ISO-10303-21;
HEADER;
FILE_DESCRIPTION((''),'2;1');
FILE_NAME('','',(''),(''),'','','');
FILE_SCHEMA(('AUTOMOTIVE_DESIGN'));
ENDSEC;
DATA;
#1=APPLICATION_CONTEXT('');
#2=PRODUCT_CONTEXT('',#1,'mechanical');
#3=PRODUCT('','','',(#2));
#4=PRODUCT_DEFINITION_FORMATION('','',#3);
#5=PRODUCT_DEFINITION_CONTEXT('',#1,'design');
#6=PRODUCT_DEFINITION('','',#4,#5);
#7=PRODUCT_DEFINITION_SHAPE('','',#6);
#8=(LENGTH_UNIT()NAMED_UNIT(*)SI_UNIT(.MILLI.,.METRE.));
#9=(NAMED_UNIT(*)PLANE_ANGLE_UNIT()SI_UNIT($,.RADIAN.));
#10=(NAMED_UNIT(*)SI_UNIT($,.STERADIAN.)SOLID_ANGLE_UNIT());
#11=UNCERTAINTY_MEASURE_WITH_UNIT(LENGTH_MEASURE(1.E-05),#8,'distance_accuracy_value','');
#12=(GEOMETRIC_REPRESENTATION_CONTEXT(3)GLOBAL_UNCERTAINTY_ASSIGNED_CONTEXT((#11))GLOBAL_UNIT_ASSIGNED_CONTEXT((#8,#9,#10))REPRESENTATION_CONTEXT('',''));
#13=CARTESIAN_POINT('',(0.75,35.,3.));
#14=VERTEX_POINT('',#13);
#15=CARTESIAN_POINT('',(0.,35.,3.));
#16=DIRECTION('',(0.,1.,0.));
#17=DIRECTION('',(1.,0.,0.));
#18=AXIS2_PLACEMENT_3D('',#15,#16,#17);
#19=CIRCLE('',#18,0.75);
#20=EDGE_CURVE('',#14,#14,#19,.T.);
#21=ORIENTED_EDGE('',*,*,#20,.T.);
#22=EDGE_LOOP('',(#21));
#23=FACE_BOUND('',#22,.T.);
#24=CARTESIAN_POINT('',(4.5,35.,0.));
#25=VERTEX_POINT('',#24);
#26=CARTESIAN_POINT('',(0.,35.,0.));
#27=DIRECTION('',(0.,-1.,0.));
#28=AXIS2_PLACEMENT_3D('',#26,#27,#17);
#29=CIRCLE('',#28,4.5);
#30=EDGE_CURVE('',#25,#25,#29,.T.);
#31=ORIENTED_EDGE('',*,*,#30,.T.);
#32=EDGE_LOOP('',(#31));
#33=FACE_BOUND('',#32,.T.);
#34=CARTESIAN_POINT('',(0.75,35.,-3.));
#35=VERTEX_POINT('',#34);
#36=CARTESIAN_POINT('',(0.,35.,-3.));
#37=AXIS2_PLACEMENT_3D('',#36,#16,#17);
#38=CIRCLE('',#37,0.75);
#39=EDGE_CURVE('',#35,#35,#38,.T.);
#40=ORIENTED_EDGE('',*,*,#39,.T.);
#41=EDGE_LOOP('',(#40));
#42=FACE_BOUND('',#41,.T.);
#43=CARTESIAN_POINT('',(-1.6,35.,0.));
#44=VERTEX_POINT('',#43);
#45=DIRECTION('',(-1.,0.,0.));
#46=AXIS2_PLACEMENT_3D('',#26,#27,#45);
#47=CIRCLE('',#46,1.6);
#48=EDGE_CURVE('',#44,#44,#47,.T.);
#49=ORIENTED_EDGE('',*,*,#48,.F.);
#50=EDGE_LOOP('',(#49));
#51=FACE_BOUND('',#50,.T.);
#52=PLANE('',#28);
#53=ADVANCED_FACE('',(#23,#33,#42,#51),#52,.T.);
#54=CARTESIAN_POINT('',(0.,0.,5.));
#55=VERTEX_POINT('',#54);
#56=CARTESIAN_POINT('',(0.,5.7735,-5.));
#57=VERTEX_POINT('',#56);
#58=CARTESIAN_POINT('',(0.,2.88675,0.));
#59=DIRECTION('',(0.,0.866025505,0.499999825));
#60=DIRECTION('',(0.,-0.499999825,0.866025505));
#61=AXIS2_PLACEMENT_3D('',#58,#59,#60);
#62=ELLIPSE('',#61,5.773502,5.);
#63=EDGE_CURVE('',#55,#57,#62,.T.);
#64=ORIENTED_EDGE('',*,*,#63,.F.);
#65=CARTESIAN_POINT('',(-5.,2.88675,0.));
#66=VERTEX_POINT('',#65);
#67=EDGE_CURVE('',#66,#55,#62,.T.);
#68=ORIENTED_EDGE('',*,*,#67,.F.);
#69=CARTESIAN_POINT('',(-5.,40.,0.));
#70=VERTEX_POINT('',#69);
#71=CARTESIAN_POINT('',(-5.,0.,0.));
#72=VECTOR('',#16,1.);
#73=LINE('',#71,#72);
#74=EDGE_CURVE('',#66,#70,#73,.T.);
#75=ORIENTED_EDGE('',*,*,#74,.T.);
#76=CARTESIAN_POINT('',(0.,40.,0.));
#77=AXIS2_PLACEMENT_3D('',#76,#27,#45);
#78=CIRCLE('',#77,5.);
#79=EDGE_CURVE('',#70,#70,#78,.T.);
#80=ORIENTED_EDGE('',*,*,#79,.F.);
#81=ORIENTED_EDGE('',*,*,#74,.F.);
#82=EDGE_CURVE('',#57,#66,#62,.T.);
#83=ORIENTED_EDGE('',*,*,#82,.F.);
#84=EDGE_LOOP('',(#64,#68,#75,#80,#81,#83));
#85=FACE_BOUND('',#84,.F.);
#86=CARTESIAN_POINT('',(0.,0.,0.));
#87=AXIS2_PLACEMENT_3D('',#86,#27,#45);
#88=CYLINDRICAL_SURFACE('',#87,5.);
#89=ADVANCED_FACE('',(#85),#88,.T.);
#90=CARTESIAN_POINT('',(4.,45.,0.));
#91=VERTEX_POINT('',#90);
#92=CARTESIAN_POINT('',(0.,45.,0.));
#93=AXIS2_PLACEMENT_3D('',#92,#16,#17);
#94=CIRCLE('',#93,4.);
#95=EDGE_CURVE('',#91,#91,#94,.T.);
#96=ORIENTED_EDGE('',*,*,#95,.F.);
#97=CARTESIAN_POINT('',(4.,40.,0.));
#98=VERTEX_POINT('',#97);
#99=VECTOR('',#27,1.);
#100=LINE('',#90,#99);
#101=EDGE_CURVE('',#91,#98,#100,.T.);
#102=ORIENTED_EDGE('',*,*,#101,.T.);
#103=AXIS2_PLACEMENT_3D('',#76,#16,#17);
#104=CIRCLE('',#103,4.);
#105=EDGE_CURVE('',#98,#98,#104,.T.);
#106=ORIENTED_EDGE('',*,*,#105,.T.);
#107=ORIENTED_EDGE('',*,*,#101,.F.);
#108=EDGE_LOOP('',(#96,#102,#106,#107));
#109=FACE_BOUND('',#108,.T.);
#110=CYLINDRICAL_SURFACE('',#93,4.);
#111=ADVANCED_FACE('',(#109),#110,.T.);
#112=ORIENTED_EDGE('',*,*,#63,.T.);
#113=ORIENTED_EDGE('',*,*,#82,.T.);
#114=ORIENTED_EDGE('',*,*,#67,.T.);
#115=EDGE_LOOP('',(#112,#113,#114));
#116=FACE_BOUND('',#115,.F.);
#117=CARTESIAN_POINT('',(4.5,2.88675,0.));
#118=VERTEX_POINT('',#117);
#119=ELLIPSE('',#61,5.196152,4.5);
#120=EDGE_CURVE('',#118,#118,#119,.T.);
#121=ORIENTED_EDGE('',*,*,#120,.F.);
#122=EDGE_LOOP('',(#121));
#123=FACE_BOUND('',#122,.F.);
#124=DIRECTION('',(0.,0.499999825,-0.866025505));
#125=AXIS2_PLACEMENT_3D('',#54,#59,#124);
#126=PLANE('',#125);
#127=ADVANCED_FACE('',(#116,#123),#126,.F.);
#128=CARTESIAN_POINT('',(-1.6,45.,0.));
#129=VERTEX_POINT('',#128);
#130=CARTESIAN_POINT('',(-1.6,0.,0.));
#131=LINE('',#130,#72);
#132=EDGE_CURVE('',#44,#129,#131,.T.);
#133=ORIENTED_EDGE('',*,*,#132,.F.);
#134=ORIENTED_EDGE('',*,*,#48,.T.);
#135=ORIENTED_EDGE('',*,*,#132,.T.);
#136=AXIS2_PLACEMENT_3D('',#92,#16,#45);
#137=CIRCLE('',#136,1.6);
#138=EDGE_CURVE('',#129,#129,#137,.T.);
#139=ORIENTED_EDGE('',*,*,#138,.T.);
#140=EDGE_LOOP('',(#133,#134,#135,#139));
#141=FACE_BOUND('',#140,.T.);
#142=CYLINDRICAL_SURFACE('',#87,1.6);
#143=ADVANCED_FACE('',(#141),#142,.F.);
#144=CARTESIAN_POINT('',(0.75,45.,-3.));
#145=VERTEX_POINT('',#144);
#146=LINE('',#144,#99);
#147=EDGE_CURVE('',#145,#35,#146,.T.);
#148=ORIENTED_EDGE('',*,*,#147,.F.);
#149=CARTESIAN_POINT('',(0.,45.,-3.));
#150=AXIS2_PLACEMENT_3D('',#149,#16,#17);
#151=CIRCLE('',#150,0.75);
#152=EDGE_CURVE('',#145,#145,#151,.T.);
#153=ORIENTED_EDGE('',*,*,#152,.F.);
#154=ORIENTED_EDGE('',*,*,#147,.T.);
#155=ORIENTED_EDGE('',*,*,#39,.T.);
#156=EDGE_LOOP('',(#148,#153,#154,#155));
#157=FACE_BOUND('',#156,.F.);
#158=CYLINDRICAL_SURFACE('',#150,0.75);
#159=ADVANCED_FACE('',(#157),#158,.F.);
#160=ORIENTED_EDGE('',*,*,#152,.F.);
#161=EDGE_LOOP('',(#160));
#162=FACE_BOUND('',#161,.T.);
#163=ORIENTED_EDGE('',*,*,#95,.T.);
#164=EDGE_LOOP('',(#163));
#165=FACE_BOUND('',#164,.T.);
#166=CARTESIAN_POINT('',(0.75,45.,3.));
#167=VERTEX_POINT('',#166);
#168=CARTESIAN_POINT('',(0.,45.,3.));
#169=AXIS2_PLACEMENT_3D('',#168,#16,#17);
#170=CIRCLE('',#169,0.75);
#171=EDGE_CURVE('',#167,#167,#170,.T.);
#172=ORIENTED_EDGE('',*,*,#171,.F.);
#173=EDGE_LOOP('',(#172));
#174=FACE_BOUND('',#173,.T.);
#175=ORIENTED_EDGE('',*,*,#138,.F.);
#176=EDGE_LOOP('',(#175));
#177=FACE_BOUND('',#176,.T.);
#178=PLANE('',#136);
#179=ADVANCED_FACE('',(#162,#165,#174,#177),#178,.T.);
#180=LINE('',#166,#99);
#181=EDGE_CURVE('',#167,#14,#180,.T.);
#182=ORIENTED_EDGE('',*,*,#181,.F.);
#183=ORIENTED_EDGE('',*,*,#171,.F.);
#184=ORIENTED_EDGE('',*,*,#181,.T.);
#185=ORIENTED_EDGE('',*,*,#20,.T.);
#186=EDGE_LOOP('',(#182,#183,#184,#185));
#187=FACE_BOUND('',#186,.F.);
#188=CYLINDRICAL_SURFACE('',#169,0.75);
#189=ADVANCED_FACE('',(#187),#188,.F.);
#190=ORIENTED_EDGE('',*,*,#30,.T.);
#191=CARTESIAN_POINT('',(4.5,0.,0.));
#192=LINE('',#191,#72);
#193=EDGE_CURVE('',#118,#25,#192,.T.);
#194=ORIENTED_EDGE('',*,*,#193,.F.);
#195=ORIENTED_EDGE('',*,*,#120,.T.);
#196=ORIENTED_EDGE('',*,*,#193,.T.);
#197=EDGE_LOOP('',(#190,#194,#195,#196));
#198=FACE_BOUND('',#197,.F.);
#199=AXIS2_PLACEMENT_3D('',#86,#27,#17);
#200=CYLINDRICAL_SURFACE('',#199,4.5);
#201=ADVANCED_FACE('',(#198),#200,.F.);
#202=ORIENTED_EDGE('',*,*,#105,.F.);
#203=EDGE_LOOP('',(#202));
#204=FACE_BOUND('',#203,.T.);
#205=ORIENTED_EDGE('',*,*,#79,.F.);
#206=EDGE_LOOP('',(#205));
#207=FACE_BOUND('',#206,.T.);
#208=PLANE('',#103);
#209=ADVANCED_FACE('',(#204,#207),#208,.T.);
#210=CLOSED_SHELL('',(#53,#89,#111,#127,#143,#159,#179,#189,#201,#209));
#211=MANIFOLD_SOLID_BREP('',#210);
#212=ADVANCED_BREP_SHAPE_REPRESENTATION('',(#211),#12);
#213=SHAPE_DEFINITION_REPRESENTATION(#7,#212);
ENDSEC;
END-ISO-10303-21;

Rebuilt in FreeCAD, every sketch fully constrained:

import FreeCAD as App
import Part
import Sketcher
from FreeCAD import Vector
Q = App.Units.Quantity

doc = App.newDocument("Part")
body = doc.addObject("PartDesign::Body", "Body")

sketch1 = body.newObject("Sketcher::SketchObject", "Sketch")
sketch1.AttachmentSupport = (doc.getObject("XZ_Plane"), [""])
sketch1.MapMode = "FlatFace"
sketch1.addGeometry([
    Part.Circle(Vector(0, 0, 0), Vector(0, 0, 1), 5),
    Part.Circle(Vector(0, 0, 0), Vector(0, 0, 1), 1.6),
], False)
sketch1.addConstraint([
    Sketcher.Constraint("Coincident", 0, 3, -1, 1),
    Sketcher.Constraint("Coincident", 1, 3, -1, 1),
    Sketcher.Constraint("Diameter", 0, 10.0),
    Sketcher.Constraint("Diameter", 1, 3.2),
])
pad1 = body.newObject("PartDesign::Pad", "Pad")
pad1.Profile = sketch1
pad1.Length = 45
pad1.Reversed = True

sketch2 = body.newObject("Sketcher::SketchObject", "Sketch001")
sketch2.AttachmentSupport = (doc.getObject("XZ_Plane"), [""])
sketch2.MapMode = "FlatFace"
sketch2.AttachmentOffset = App.Placement(Vector(0, 0, -45), App.Rotation())
sketch2.addGeometry([
    Part.Circle(Vector(0, -3, 0), Vector(0, 0, 1), 0.75),
    Part.Circle(Vector(0, 3, 0), Vector(0, 0, 1), 0.75),
], False)
sketch2.addConstraint([
    Sketcher.Constraint("Equal", 0, 1),
    Sketcher.Constraint("Symmetric", 0, 3, 1, 3, -1, 1),
    Sketcher.Constraint("PointOnObject", 0, 3, -2),
    Sketcher.Constraint("Diameter", 0, 1.5),
    Sketcher.Constraint("DistanceY", 0, 3, -1, 1, 3.0),
])
pocket1 = body.newObject("PartDesign::Pocket", "Pocket")
pocket1.Profile = sketch2
pocket1.Type = "ThroughAll"
pocket1.Reversed = True

sketch3 = body.newObject("Sketcher::SketchObject", "Sketch002")
sketch3.AttachmentSupport = (doc.getObject("XZ_Plane"), [""])
sketch3.MapMode = "FlatFace"
sketch3.addGeometry(Part.Circle(Vector(0, 0, 0), Vector(0, 0, 1), 4.5), False)
sketch3.addConstraint([
    Sketcher.Constraint("Coincident", 0, 3, -1, 1),
    Sketcher.Constraint("Diameter", 0, 9.0),
])
pocket2 = body.newObject("PartDesign::Pocket", "Pocket001")
pocket2.Profile = sketch3
pocket2.Length = 35

sketch4 = body.newObject("Sketcher::SketchObject", "Sketch003")
sketch4.AttachmentSupport = (doc.getObject("YZ_Plane"), [""])
sketch4.MapMode = "FlatFace"
sketch4.addGeometry([
    Part.LineSegment(Vector(0, 5, 0), Vector(0, -5, 0)),
    Part.LineSegment(Vector(0, -5, 0), Vector(5.7735, -5, 0)),
    Part.LineSegment(Vector(5.7735, -5, 0), Vector(0, 5, 0)),
], False)
sketch4.addConstraint([
    Sketcher.Constraint("Coincident", 0, 2, 1, 1),
    Sketcher.Constraint("Coincident", 1, 2, 2, 1),
    Sketcher.Constraint("Coincident", 2, 2, 0, 1),
    Sketcher.Constraint("Vertical", 0),
    Sketcher.Constraint("Horizontal", 1),
    Sketcher.Constraint("Symmetric", 0, 2, 2, 2, -1, 1),
    Sketcher.Constraint("DistanceY", 0, 2, 0, 1, 10.0),
    Sketcher.Constraint("Angle", 2, Q("120 deg")),
])
pocket3 = body.newObject("PartDesign::Pocket", "Pocket002")
pocket3.Profile = sketch4
pocket3.Type = "ThroughAll"
pocket3.Midplane = True

sketch5 = body.newObject("Sketcher::SketchObject", "Sketch004")
sketch5.AttachmentSupport = (doc.getObject("XZ_Plane"), [""])
sketch5.MapMode = "FlatFace"
sketch5.AttachmentOffset = App.Placement(Vector(0, 0, -45), App.Rotation())
sketch5.addGeometry([
    Part.Circle(Vector(0, 0, 0), Vector(0, 0, 1), 5),
    Part.Circle(Vector(0, 0, 0), Vector(0, 0, 1), 4),
], False)
sketch5.addConstraint([
    Sketcher.Constraint("Coincident", 0, 3, -1, 1),
    Sketcher.Constraint("Coincident", 1, 3, -1, 1),
    Sketcher.Constraint("Diameter", 0, 10.0),
    Sketcher.Constraint("Diameter", 1, 8.0),
])
pocket4 = body.newObject("PartDesign::Pocket", "Pocket003")
pocket4.Profile = sketch5
pocket4.Length = 5
pocket4.Reversed = True

doc.recompute()
